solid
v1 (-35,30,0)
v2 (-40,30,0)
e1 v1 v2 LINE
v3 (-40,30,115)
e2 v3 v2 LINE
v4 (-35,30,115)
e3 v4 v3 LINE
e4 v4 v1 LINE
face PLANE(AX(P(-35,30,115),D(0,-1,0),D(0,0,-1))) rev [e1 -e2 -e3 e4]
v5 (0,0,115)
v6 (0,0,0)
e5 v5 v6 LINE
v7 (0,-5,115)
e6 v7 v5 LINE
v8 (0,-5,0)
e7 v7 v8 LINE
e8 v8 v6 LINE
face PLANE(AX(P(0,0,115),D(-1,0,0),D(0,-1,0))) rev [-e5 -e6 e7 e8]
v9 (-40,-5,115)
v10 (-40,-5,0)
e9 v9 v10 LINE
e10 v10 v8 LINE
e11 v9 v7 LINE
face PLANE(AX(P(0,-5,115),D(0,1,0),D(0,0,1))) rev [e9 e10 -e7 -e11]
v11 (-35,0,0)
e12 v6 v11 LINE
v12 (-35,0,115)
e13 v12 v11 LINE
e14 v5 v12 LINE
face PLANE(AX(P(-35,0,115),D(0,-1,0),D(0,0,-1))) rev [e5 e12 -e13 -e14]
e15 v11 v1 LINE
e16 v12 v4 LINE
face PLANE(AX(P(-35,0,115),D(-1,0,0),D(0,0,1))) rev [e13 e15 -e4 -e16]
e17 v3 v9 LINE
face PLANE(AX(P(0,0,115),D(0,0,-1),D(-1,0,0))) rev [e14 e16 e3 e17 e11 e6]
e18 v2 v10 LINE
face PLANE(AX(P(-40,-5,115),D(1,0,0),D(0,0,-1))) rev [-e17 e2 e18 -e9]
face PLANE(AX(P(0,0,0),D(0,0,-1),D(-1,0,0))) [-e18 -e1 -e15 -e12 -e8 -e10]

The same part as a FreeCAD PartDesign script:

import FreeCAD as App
import Part
import Sketcher
from FreeCAD import Vector
Q = App.Units.Quantity

doc = App.newDocument("Part")
body = doc.addObject("PartDesign::Body", "Body")

# Sketch on XY plane
sketch1 = doc.addObject("Sketcher::SketchObject", "Sketch")
body.addObject(sketch1)
sketch1.AttachmentSupport = (doc.XY_Plane, [""])
sketch1.MapMode = "FlatFace"
sketch1.addGeometry([
    Part.LineSegment(Vector(-35, 0, 0), Vector(-35, 30, 0)),  # 0
    Part.LineSegment(Vector(-35, 30, 0), Vector(-40, 30, 0)),  # 1
    Part.LineSegment(Vector(-40, 30, 0), Vector(-40, -5, 0)),  # 2
    Part.LineSegment(Vector(-40, -5, 0), Vector(0, -5, 0)),  # 3
    Part.LineSegment(Vector(0, -5, 0), Vector(0, 0, 0)),  # 4
    Part.LineSegment(Vector(0, 0, 0), Vector(-35, 0, 0)),  # 5
], False)
sketch1.addConstraint([
    Sketcher.Constraint("Coincident", 0, 2, 1, 1),
    Sketcher.Constraint("Coincident", 1, 2, 2, 1),
    Sketcher.Constraint("Coincident", 2, 2, 3, 1),
    Sketcher.Constraint("Coincident", 3, 2, 4, 1),
    Sketcher.Constraint("Coincident", 4, 2, 5, 1),
    Sketcher.Constraint("Coincident", 5, 2, 0, 1),
    Sketcher.Constraint("Vertical", 0),
    Sketcher.Constraint("Horizontal", 1),
    Sketcher.Constraint("Vertical", 2),
    Sketcher.Constraint("Horizontal", 3),
    Sketcher.Constraint("Vertical", 4),
    Sketcher.Constraint("Horizontal", 5),
    Sketcher.Constraint("Coincident", 4, 2, -1, 1),
    Sketcher.Constraint("Equal", 5, 2),
    Sketcher.Constraint("Equal", 1, 4),
    Sketcher.Constraint("DistanceX", 1, 2, 1, 1, Q("5 mm")),
    Sketcher.Constraint("DistanceX", 3, 1, 3, 2, Q("40 mm")),
])
pad1 = doc.addObject("PartDesign::Pad", "Pad")
body.addObject(pad1)
pad1.Profile = sketch1
pad1.Length = 115

doc.recompute()
